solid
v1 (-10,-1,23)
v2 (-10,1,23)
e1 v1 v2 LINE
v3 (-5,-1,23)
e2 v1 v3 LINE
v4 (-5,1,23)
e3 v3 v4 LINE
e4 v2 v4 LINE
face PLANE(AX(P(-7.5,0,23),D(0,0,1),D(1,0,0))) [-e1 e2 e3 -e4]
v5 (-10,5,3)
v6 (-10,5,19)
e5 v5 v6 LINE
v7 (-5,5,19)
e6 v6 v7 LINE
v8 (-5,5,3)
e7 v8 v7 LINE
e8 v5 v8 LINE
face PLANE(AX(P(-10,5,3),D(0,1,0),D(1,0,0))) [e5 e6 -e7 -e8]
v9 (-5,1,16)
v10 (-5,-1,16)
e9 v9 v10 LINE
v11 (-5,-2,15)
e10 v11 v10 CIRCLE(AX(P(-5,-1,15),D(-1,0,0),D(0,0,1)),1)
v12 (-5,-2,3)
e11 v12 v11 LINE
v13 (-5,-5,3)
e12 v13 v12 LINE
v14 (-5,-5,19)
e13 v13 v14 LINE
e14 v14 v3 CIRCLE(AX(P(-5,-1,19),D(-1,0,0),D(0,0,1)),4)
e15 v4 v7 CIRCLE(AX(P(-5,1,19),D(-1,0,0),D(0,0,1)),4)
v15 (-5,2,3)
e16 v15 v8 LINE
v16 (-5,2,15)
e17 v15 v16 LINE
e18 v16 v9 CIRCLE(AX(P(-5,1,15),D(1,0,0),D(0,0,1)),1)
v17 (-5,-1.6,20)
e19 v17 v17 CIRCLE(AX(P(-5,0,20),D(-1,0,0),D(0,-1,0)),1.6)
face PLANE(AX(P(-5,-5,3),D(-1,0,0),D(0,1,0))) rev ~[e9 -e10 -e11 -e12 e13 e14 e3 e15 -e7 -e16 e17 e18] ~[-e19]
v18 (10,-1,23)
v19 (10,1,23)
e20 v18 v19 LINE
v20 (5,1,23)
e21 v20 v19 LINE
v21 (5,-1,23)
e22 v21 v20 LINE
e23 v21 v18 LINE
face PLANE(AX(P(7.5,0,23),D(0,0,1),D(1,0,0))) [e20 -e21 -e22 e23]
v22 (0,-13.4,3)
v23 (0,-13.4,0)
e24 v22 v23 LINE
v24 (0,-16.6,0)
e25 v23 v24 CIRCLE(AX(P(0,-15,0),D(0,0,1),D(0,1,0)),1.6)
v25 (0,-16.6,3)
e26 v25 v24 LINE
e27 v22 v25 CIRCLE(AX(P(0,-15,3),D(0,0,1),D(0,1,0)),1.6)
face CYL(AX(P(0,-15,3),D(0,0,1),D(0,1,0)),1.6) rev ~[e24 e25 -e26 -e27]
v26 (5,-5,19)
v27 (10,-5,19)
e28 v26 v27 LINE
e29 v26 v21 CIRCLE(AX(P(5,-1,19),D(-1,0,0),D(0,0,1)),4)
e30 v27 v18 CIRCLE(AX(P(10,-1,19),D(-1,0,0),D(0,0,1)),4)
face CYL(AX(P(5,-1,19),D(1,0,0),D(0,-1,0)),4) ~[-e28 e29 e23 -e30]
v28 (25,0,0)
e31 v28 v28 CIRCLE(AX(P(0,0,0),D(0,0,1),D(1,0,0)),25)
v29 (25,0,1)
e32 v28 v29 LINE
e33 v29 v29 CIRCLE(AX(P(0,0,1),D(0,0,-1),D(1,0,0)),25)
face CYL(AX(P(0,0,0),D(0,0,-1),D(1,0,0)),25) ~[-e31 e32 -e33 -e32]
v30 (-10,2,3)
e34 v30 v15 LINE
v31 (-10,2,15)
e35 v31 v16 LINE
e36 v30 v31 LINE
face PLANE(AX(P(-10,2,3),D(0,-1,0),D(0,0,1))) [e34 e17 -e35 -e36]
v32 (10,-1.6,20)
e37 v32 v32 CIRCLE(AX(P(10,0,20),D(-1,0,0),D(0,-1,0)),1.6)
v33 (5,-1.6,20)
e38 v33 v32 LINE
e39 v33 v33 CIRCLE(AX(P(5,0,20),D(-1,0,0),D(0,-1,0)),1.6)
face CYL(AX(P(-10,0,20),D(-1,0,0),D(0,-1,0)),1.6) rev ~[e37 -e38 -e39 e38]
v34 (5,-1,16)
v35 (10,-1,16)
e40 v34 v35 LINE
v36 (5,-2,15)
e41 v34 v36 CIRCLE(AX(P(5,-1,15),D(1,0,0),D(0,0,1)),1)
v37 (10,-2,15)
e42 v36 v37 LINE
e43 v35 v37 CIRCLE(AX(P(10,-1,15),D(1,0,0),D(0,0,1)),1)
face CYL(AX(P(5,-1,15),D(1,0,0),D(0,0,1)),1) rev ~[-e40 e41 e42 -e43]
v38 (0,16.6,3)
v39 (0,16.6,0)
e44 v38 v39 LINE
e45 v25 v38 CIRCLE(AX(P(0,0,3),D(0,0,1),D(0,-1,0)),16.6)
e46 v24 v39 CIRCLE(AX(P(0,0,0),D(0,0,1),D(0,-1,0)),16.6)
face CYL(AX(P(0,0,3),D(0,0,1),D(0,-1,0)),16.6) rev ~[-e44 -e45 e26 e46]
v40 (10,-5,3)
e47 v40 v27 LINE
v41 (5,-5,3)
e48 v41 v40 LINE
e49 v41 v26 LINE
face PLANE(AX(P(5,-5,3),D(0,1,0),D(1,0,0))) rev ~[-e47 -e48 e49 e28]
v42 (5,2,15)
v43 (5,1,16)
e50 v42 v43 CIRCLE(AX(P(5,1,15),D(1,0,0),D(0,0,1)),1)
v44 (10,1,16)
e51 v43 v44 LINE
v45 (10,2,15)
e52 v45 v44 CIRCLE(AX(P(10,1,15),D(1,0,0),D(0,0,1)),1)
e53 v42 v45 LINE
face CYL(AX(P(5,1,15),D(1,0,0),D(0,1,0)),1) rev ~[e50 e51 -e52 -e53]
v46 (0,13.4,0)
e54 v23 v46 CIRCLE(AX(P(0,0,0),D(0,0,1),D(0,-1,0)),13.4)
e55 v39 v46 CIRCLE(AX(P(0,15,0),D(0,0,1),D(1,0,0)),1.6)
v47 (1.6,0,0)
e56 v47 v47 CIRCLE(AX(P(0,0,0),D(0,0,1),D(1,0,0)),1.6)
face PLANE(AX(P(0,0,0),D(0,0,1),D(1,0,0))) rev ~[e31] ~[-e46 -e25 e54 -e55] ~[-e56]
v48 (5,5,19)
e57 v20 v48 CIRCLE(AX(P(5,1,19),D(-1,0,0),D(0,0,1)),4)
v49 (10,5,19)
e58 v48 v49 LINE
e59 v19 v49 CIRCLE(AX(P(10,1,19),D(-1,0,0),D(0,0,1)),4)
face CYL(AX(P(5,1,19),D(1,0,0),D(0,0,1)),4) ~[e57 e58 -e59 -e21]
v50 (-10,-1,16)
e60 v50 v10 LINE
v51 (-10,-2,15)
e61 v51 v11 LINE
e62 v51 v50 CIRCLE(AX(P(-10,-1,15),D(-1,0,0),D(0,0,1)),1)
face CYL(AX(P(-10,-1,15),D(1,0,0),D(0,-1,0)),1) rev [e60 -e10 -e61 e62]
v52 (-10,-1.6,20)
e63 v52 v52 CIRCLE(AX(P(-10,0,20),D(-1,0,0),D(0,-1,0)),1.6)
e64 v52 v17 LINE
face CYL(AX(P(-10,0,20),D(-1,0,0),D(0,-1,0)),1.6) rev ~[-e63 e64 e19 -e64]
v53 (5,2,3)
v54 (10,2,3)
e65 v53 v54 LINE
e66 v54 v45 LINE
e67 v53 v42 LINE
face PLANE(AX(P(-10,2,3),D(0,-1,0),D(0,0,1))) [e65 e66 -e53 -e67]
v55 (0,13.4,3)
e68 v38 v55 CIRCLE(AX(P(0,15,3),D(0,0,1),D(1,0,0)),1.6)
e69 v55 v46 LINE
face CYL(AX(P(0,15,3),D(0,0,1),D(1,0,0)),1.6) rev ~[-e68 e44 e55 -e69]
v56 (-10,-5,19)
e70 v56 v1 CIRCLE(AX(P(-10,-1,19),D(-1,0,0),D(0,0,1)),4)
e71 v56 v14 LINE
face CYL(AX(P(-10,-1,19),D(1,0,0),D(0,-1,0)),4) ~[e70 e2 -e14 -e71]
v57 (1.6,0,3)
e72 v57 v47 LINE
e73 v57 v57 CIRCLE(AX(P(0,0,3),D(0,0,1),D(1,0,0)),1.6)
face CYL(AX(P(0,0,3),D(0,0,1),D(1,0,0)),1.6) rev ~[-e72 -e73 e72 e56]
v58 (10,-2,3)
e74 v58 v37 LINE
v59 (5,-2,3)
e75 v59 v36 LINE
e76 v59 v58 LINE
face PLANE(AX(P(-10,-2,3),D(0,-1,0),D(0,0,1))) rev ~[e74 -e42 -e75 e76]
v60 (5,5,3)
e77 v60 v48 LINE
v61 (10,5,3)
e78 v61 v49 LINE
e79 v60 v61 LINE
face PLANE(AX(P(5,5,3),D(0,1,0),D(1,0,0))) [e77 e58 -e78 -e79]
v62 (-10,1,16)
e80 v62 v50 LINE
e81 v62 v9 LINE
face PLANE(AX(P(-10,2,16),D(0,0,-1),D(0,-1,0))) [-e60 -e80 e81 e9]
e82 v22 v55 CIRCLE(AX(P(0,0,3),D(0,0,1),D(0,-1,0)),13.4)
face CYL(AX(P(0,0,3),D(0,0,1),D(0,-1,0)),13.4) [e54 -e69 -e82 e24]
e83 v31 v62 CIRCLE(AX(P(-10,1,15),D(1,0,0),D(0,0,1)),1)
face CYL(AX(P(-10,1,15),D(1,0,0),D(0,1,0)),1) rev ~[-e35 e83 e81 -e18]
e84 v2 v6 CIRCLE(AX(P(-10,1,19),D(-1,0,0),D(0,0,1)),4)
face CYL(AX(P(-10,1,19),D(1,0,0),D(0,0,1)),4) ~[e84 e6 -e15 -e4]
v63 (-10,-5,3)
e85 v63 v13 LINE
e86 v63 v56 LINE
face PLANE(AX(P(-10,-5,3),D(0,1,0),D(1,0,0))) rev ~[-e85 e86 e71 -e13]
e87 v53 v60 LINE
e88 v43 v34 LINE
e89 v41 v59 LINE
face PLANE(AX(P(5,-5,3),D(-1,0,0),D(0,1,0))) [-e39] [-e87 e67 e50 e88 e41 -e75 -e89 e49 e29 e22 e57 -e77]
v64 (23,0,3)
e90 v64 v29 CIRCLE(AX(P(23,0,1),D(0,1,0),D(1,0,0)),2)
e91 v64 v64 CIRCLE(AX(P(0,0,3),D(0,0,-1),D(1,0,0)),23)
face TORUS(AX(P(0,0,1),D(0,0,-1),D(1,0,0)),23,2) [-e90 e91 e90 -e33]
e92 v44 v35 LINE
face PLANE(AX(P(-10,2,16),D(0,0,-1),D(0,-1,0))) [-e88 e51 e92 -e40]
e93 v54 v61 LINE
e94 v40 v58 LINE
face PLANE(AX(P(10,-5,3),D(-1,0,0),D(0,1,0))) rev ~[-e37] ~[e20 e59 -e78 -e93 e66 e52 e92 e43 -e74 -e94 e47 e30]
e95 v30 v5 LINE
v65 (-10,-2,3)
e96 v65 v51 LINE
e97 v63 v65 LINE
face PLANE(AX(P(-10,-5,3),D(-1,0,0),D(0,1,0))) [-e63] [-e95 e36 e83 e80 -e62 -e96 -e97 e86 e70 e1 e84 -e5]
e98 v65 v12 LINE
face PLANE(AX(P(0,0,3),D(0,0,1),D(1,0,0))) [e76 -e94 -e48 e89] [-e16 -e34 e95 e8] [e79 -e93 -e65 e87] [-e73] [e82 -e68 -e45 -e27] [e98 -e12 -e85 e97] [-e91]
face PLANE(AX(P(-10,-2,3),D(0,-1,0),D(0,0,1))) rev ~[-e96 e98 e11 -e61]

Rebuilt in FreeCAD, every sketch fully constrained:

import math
import FreeCAD as App
import Part
import Sketcher
from FreeCAD import Vector
Q = App.Units.Quantity


def edges_at(feature, points):
    """Names of the edges that pass closest to the given points."""
    edges = feature.Shape.Edges
    near = lambda p: min(range(len(edges)), key=lambda i: edges[i].distToShape(Part.Vertex(*p))[0])
    return sorted({f"Edge{near(p) + 1}" for p in points})


def add_polygon(sketch, points):
    """Adds a closed chain of lines whose ends are joined by coincident constraints."""
    first, n = sketch.GeometryCount, len(points)
    for a, b in zip(points, points[1:] + points[:1]):
        sketch.addGeometry(Part.LineSegment(App.Vector(*a, 0), App.Vector(*b, 0)), False)
    for i in range(n):
        sketch.addConstraint(Sketcher.Constraint("Coincident", first + i, 2, first + (i + 1) % n, 1))

doc = App.newDocument("Part")
body = doc.addObject("PartDesign::Body", "Body")

# Sketch on XY plane
sketch1 = body.newObject("Sketcher::SketchObject", "Sketch")
sketch1.AttachmentSupport = (doc.getObject("XY_Plane"), [""])
sketch1.MapMode = "FlatFace"
sketch1.addGeometry(Part.Circle(Vector(0, 0, 0), Vector(0, 0, 1), 25), False)
sketch1.addConstraint([
    Sketcher.Constraint("Coincident", 0, 3, -1, 1),
    Sketcher.Constraint("Diameter", 0, Q("50 mm")),
])
pad1 = body.newObject("PartDesign::Pad", "Pad")
pad1.Profile = sketch1
pad1.Length = 3

# Sketch on XY plane
sketch2 = body.newObject("Sketcher::SketchObject", "Sketch001")
sketch2.AttachmentSupport = (doc.getObject("XY_Plane"), [""])
sketch2.MapMode = "FlatFace"
sketch2.AttachmentOffset = App.Placement(Vector(0, 0, 3), App.Rotation())
add_polygon(sketch2, [(-10, 5), (-10, -5), (-5, -5), (-5, 5)])  # lines 0-3
add_polygon(sketch2, [(5, 5), (5, -5), (10, -5), (10, 5)])  # lines 4-7
sketch2.addConstraint([
    Sketcher.Constraint("Vertical", 0),
    Sketcher.Constraint("Horizontal", 1),
    Sketcher.Constraint("Vertical", 2),
    Sketcher.Constraint("Horizontal", 3),
    Sketcher.Constraint("Vertical", 4),
    Sketcher.Constraint("Horizontal", 5),
    Sketcher.Constraint("Vertical", 6),
    Sketcher.Constraint("Horizontal", 7),
    Sketcher.Constraint("Symmetric", 2, 2, 4, 2, -1, 1),
    Sketcher.Constraint("Symmetric", 0, 2, 6, 2, -1, 1),
    Sketcher.Constraint("Horizontal", 1, 2, 4, 2),
    Sketcher.Constraint("DistanceX", 1, 1, 1, 2, Q("5 mm")),
    Sketcher.Constraint("DistanceY", 0, 2, 0, 1, Q("10 mm")),
    Sketcher.Constraint("DistanceX", 0, 2, -1, 1, Q("10 mm")),
])
pad2 = body.newObject("PartDesign::Pad", "Pad001")
pad2.Profile = sketch2
pad2.Length = 20

# Sketch on XY plane
sketch3 = body.newObject("Sketcher::SketchObject", "Sketch002")
sketch3.AttachmentSupport = (doc.getObject("XY_Plane"), [""])
sketch3.MapMode = "FlatFace"
sketch3.AttachmentOffset = App.Placement(Vector(0, 0, 3), App.Rotation())
sketch3.addGeometry([
    Part.Circle(Vector(0, 0, 0), Vector(0, 0, 1), 1.6),
    Part.Circle(Vector(0, 15, 0), Vector(0, 0, 1), 1.6),
], False)
sketch3.addConstraint([
    Sketcher.Constraint("Coincident", 0, 3, -1, 1),
    Sketcher.Constraint("Equal", 0, 1),
    Sketcher.Constraint("PointOnObject", 1, 3, -2),
    Sketcher.Constraint("Diameter", 0, Q("3.2 mm")),
    Sketcher.Constraint("DistanceY", -1, 1, 1, 3, Q("15 mm")),
])
pocket1 = body.newObject("PartDesign::Pocket", "Pocket")
pocket1.Profile = sketch3
pocket1.Length = 5

# Sketch on YZ plane
sketch4 = body.newObject("Sketcher::SketchObject", "Sketch003")
sketch4.AttachmentSupport = (doc.getObject("YZ_Plane"), [""])
sketch4.MapMode = "FlatFace"
sketch4.AttachmentOffset = App.Placement(Vector(0, 0, -10), App.Rotation())
sketch4.addGeometry(Part.Circle(Vector(0, 20, 0), Vector(0, 0, 1), 1.6), False)  # 0
add_polygon(sketch4, [(2, 16), (2, 3), (-2, 3), (-2, 16)])  # lines 1-4
sketch4.addConstraint([
    Sketcher.Constraint("Vertical", 1),
    Sketcher.Constraint("Horizontal", 2),
    Sketcher.Constraint("Vertical", 3),
    Sketcher.Constraint("Horizontal", 4),
    Sketcher.Constraint("PointOnObject", 0, 3, -2),
    Sketcher.Constraint("Diameter", 0, Q("3.2 mm")),
    Sketcher.Constraint("DistanceX", 2, 2, 2, 1, Q("4 mm")),
    Sketcher.Constraint("DistanceY", 1, 2, 1, 1, Q("13 mm")),
    Sketcher.Constraint("DistanceY", -1, 1, 0, 3, Q("20 mm")),
    Sketcher.Constraint("DistanceX", -1, 1, 1, 2, Q("2 mm")),
    Sketcher.Constraint("DistanceY", -1, 1, 1, 2, Q("3 mm")),
])
pocket2 = body.newObject("PartDesign::Pocket", "Pocket001")
pocket2.Profile = sketch4
pocket2.Type = "ThroughAll"
pocket2.Reversed = True
doc.recompute()

fillet = body.newObject("PartDesign::Fillet", "Fillet")
fillet.Base = (pocket2, edges_at(pocket2, [
    (-7.5, 5, 23),
    (-7.5, -5, 23),
    (7.5, -5, 23),
    (7.5, 5, 23),
]))
fillet.Radius = 4
doc.recompute()

fillet2 = body.newObject("PartDesign::Fillet", "Fillet001")
fillet2.Base = (fillet, edges_at(fillet, [
    (7.5, -2, 16),
    (-7.5, -2, 16),
    (-7.5, 2, 16),
    (7.5, 2, 16),
]))
fillet2.Radius = 1
doc.recompute()

fillet3 = body.newObject("PartDesign::Fillet", "Fillet002")
fillet3.Base = (fillet2, edges_at(fillet2, [(-25, 0, 3)]))
fillet3.Radius = 2

# Sketch on XY plane
sketch5 = body.newObject("Sketcher::SketchObject", "Sketch004")
sketch5.AttachmentSupport = (doc.getObject("XY_Plane"), [""])
sketch5.MapMode = "FlatFace"
sketch5.AttachmentOffset = App.Placement(Vector(0, 0, 3), App.Rotation())
sketch5.addGeometry([
    Part.ArcOfCircle(Part.Circle(Vector(0, 0, 0), Vector(0, 0, 1), 16.6), math.radians(-90), math.radians(90)),
    Part.LineSegment(Vector(0, 16.6, 0), Vector(0, 13.4, 0)),
    Part.ArcOfCircle(Part.Circle(Vector(0, 0, 0), Vector(0, 0, 1), 13.4), math.radians(-90), math.radians(90)),
    Part.LineSegment(Vector(0, -13.4, 0), Vector(0, -16.6, 0)),
], False)
sketch5.addConstraint([
    Sketcher.Constraint("Coincident", 0, 2, 1, 1),
    Sketcher.Constraint("Coincident", 1, 2, 2, 2),
    Sketcher.Constraint("Coincident", 2, 1, 3, 1),
    Sketcher.Constraint("Coincident", 3, 2, 0, 1),
    Sketcher.Constraint("Vertical", 1),
    Sketcher.Constraint("Vertical", 3),
    Sketcher.Constraint("Coincident", 0, 3, -1, 1),
    Sketcher.Constraint("Coincident", 2, 3, -1, 1),
    Sketcher.Constraint("PointOnObject", 0, 2, -2),
    Sketcher.Constraint("PointOnObject", 2, 1, -2),
    Sketcher.Constraint("Radius", 0, Q("16.6 mm")),
    Sketcher.Constraint("Radius", 2, Q("13.4 mm")),
])
pocket3 = body.newObject("PartDesign::Pocket", "Pocket002")
pocket3.Profile = sketch5
pocket3.Length = 5

# Sketch on XY plane
sketch6 = body.newObject("Sketcher::SketchObject", "Sketch005")
sketch6.AttachmentSupport = (doc.getObject("XY_Plane"), [""])
sketch6.MapMode = "FlatFace"
sketch6.AttachmentOffset = App.Placement(Vector(0, 0, 3), App.Rotation())
sketch6.addGeometry([
    Part.ArcOfCircle(Part.Circle(Vector(0, -15, 0), Vector(0, 0, 1), 1.6), math.radians(90), math.radians(270)),
    Part.LineSegment(Vector(0, -16.6, 0), Vector(0, -13.4, 0)),
], False)
sketch6.addConstraint([
    Sketcher.Constraint("Coincident", 0, 1, 1, 2),
    Sketcher.Constraint("Coincident", 1, 1, 0, 2),
    Sketcher.Constraint("Vertical", 1),
    Sketcher.Constraint("PointOnObject", 0, 3, -2),
    Sketcher.Constraint("PointOnObject", 0, 1, -2),
    Sketcher.Constraint("Radius", 0, Q("1.6 mm")),
    Sketcher.Constraint("DistanceY", 0, 3, -1, 1, Q("15 mm")),
])
pocket4 = body.newObject("PartDesign::Pocket", "Pocket003")
pocket4.Profile = sketch6
pocket4.Length = 5

doc.recompute()
